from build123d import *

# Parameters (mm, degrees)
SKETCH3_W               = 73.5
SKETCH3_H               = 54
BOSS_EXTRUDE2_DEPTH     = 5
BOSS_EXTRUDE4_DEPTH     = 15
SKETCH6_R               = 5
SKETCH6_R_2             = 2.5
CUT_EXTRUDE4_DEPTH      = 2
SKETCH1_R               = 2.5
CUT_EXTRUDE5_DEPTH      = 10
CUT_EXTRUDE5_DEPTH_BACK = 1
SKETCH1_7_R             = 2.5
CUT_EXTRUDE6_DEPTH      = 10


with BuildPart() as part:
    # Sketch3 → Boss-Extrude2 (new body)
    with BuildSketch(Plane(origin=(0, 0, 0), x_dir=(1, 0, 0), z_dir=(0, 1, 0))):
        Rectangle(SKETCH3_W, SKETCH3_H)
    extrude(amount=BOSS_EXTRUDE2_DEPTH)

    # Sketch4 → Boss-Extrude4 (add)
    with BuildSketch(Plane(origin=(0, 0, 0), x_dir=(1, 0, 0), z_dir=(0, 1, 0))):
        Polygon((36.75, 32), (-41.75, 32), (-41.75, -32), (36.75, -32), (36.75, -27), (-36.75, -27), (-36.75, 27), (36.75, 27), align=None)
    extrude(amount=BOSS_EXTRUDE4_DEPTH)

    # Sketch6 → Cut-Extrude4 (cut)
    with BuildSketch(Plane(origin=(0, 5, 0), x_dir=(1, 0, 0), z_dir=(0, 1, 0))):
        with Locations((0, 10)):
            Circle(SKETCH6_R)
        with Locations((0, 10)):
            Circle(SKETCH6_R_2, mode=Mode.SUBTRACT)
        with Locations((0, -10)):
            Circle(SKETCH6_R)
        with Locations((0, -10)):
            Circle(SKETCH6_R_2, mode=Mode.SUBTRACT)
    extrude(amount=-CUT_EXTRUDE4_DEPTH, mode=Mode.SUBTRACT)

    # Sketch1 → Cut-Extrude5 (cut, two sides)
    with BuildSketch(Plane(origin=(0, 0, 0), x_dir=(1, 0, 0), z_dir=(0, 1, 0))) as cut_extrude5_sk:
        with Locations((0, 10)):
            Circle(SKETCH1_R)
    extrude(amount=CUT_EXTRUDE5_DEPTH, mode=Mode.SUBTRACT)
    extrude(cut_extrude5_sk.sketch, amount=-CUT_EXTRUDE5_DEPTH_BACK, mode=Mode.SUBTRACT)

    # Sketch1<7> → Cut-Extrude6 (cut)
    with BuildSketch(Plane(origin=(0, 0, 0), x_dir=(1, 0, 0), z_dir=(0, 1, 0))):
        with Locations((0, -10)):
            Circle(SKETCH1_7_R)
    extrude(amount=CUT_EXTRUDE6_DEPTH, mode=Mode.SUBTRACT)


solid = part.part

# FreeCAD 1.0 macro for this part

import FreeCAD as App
import Part
import Sketcher
from FreeCAD import Vector

doc = App.newDocument("Part")
body = doc.addObject("PartDesign::Body", "Body")

# Sketch on XZ plane
sketch1 = body.newObject("Sketcher::SketchObject", "Sketch")
sketch1.AttachmentSupport = (doc.getObject("XZ_Plane"), [""])
sketch1.MapMode = "FlatFace"
sketch1.addGeometry(Part.LineSegment(Vector(-37, -27, 0), Vector(-37, 27, 0)), False)
sketch1.addGeometry(Part.LineSegment(Vector(-37, 27, 0), Vector(37, 27, 0)), False)
sketch1.addGeometry(Part.LineSegment(Vector(37, 27, 0), Vector(37, -27, 0)), False)
sketch1.addGeometry(Part.LineSegment(Vector(37, -27, 0), Vector(-37, -27, 0)), False)
sketch1.addConstraint(Sketcher.Constraint("Coincident", 0, 2, 1, 1))
sketch1.addConstraint(Sketcher.Constraint("Coincident", 1, 2, 2, 1))
sketch1.addConstraint(Sketcher.Constraint("Coincident", 2, 2, 3, 1))
sketch1.addConstraint(Sketcher.Constraint("Coincident", 3, 2, 0, 1))
sketch1.addConstraint(Sketcher.Constraint("Vertical", 0))
sketch1.addConstraint(Sketcher.Constraint("Horizontal", 1))
sketch1.addConstraint(Sketcher.Constraint("Vertical", 2))
sketch1.addConstraint(Sketcher.Constraint("Horizontal", 3))
sketch1.addConstraint(Sketcher.Constraint("Symmetric", 0, 2, 2, 2, -1, 1))
sketch1.addConstraint(Sketcher.Constraint("DistanceY", 0, 1, 0, 2, 54.0))
sketch1.addConstraint(Sketcher.Constraint("DistanceX", 1, 1, 1, 2, 73.5))
pad1 = body.newObject("PartDesign::Pad", "Pad")
pad1.Profile = sketch1
pad1.Length = 5
pad1.Reversed = True

# Sketch on XZ plane
sketch2 = body.newObject("Sketcher::SketchObject", "Sketch001")
sketch2.AttachmentSupport = (doc.getObject("XZ_Plane"), [""])
sketch2.MapMode = "FlatFace"
sketch2.addGeometry(Part.LineSegment(Vector(37, -32, 0), Vector(-42, -32, 0)), False)
sketch2.addGeometry(Part.LineSegment(Vector(-42, -32, 0), Vector(-42, 32, 0)), False)
sketch2.addGeometry(Part.LineSegment(Vector(-42, 32, 0), Vector(37, 32, 0)), False)
sketch2.addGeometry(Part.LineSegment(Vector(37, 32, 0), Vector(37, 27, 0)), False)
sketch2.addGeometry(Part.LineSegment(Vector(37, 27, 0), Vector(-37, 27, 0)), False)
sketch2.addGeometry(Part.LineSegment(Vector(-37, 27, 0), Vector(-37, -27, 0)), False)
sketch2.addGeometry(Part.LineSegment(Vector(-37, -27, 0), Vector(37, -27, 0)), False)
sketch2.addGeometry(Part.LineSegment(Vector(37, -27, 0), Vector(37, -32, 0)), False)
sketch2.addConstraint(Sketcher.Constraint("Coincident", 0, 2, 1, 1))
sketch2.addConstraint(Sketcher.Constraint("Coincident", 1, 2, 2, 1))
sketch2.addConstraint(Sketcher.Constraint("Coincident", 2, 2, 3, 1))
sketch2.addConstraint(Sketcher.Constraint("Coincident", 3, 2, 4, 1))
sketch2.addConstraint(Sketcher.Constraint("Coincident", 4, 2, 5, 1))
sketch2.addConstraint(Sketcher.Constraint("Coincident", 5, 2, 6, 1))
sketch2.addConstraint(Sketcher.Constraint("Coincident", 6, 2, 7, 1))
sketch2.addConstraint(Sketcher.Constraint("Coincident", 7, 2, 0, 1))
sketch2.addConstraint(Sketcher.Constraint("Horizontal", 0))
sketch2.addConstraint(Sketcher.Constraint("Vertical", 1))
sketch2.addConstraint(Sketcher.Constraint("Horizontal", 2))
sketch2.addConstraint(Sketcher.Constraint("Vertical", 3))
sketch2.addConstraint(Sketcher.Constraint("Horizontal", 4))
sketch2.addConstraint(Sketcher.Constraint("Vertical", 5))
sketch2.addConstraint(Sketcher.Constraint("Horizontal", 6))
sketch2.addConstraint(Sketcher.Constraint("Vertical", 7))
sketch2.addConstraint(Sketcher.Constraint("Symmetric", 3, 2, 5, 2, -1, 1))
sketch2.addConstraint(Sketcher.Constraint("Symmetric", 2, 2, 7, 2, -1))
sketch2.addConstraint(Sketcher.Constraint("DistanceY", 1, 1, 1, 2, 64.0))
sketch2.addConstraint(Sketcher.Constraint("DistanceY", 3, 2, 3, 1, 5.0))
sketch2.addConstraint(Sketcher.Constraint("DistanceX", 0, 2, 0, 1, 78.5))
sketch2.addConstraint(Sketcher.Constraint("DistanceX", 4, 2, 4, 1, 73.5))
pad2 = body.newObject("PartDesign::Pad", "Pad001")
pad2.Profile = sketch2
pad2.Length = 15
pad2.Reversed = True

# Sketch on XZ plane
sketch3 = body.newObject("Sketcher::SketchObject", "Sketch002")
sketch3.AttachmentSupport = (doc.getObject("XZ_Plane"), [""])
sketch3.MapMode = "FlatFace"
sketch3.AttachmentOffset = App.Placement(Vector(0, 0, -5), App.Rotation())
sketch3.addGeometry(Part.Circle(Vector(0, -10, 0), Vector(0, 0, 1), 5), False)
sketch3.addGeometry(Part.Circle(Vector(0, -10, 0), Vector(0, 0, 1), 2.5), False)
sketch3.addGeometry(Part.Circle(Vector(0, 10, 0), Vector(0, 0, 1), 5), False)
sketch3.addGeometry(Part.Circle(Vector(0, 10, 0), Vector(0, 0, 1), 2.5), False)
sketch3.addConstraint(Sketcher.Constraint("Coincident", 1, 3, 0, 3))
sketch3.addConstraint(Sketcher.Constraint("Coincident", 3, 3, 2, 3))
sketch3.addConstraint(Sketcher.Constraint("Equal", 0, 2))
sketch3.addConstraint(Sketcher.Constraint("Equal", 1, 3))
sketch3.addConstraint(Sketcher.Constraint("Symmetric", 0, 3, 2, 3, -1, 1))
sketch3.addConstraint(Sketcher.Constraint("PointOnObject", 0, 3, -2))
sketch3.addConstraint(Sketcher.Constraint("Diameter", 0, 10.0))
sketch3.addConstraint(Sketcher.Constraint("Diameter", 1, 5.0))
sketch3.addConstraint(Sketcher.Constraint("DistanceY", 0, 3, -1, 1, 10.0))
pocket1 = body.newObject("PartDesign::Pocket", "Pocket")
pocket1.Profile = sketch3
pocket1.Length = 2
pocket1.Reversed = True

# Sketch on XZ plane
sketch4 = body.newObject("Sketcher::SketchObject", "Sketch003")
sketch4.AttachmentSupport = (doc.getObject("XZ_Plane"), [""])
sketch4.MapMode = "FlatFace"
sketch4.addGeometry(Part.Circle(Vector(0, -10, 0), Vector(0, 0, 1), 2.5), False)
sketch4.addConstraint(Sketcher.Constraint("PointOnObject", 0, 3, -2))
sketch4.addConstraint(Sketcher.Constraint("Diameter", 0, 5.0))
sketch4.addConstraint(Sketcher.Constraint("DistanceY", 0, 3, -1, 1, 10.0))
pocket2 = body.newObject("PartDesign::Pocket", "Pocket001")
pocket2.Profile = sketch4
pocket2.Type = "ThroughAll"
pocket2.Midplane = True

# Sketch on XZ plane
sketch5 = body.newObject("Sketcher::SketchObject", "Sketch004")
sketch5.AttachmentSupport = (doc.getObject("XZ_Plane"), [""])
sketch5.MapMode = "FlatFace"
sketch5.addGeometry(Part.Circle(Vector(0, 10, 0), Vector(0, 0, 1), 2.5), False)
sketch5.addConstraint(Sketcher.Constraint("PointOnObject", 0, 3, -2))
sketch5.addConstraint(Sketcher.Constraint("Diameter", 0, 5.0))
sketch5.addConstraint(Sketcher.Constraint("DistanceY", -1, 1, 0, 3, 10.0))
pocket3 = body.newObject("PartDesign::Pocket", "Pocket002")
pocket3.Profile = sketch5
pocket3.Length = 10

doc.recompute()
